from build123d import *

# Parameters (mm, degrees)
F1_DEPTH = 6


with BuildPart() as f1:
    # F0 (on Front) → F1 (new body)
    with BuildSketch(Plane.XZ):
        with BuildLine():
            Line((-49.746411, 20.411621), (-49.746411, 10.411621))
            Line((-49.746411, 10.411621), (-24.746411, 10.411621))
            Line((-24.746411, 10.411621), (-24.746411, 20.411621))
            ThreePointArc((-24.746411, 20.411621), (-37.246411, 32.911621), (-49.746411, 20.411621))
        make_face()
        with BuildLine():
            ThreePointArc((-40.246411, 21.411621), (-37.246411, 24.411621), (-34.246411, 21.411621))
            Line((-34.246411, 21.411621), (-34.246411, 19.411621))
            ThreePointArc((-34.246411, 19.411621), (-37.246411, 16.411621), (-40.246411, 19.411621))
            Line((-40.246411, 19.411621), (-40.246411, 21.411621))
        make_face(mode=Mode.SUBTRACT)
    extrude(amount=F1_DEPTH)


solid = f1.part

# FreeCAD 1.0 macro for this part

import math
import FreeCAD as App
import Part
import Sketcher
from FreeCAD import Vector
Q = App.Units.Quantity

doc = App.newDocument("Part")
body = doc.addObject("PartDesign::Body", "Body")

# Sketch on XZ plane
sketch1 = body.newObject("Sketcher::SketchObject", "Sketch")
sketch1.AttachmentSupport = (doc.getObject("XZ_Plane"), [""])
sketch1.MapMode = "FlatFace"
sketch1.addGeometry(Part.LineSegment(Vector(-49.7, 20.4, 0), Vector(-49.7, 10.4, 0)), False)
sketch1.addGeometry(Part.LineSegment(Vector(-49.7, 10.4, 0), Vector(-24.7, 10.4, 0)), False)
sketch1.addGeometry(Part.LineSegment(Vector(-24.7, 10.4, 0), Vector(-24.7, 20.4, 0)), False)
sketch1.addGeometry(Part.ArcOfCircle(Part.Circle(Vector(-37.2, 20.4, 0), Vector(0, 0, 1), 12.5), math.radians(0), math.radians(180)), False)
sketch1.addGeometry(Part.LineSegment(Vector(-40.2, 19.4, 0), Vector(-40.2, 21.4, 0)), False)
sketch1.addGeometry(Part.ArcOfCircle(Part.Circle(Vector(-37.2, 21.4, 0), Vector(0, 0, 1), 3), math.radians(0), math.radians(180)), False)
sketch1.addGeometry(Part.LineSegment(Vector(-34.2, 21.4, 0), Vector(-34.2, 19.4, 0)), False)
sketch1.addGeometry(Part.ArcOfCircle(Part.Circle(Vector(-37.2, 19.4, 0), Vector(0, 0, 1), 3), math.radians(180), math.radians(360)), False)
sketch1.addConstraint(Sketcher.Constraint("Coincident", 0, 2, 1, 1))
sketch1.addConstraint(Sketcher.Constraint("Coincident", 1, 2, 2, 1))
sketch1.addConstraint(Sketcher.Constraint("Tangent", 2, 2, 3, 1))
sketch1.addConstraint(Sketcher.Constraint("Tangent", 3, 2, 0, 1))
sketch1.addConstraint(Sketcher.Constraint("Tangent", 4, 2, 5, 2))
sketch1.addConstraint(Sketcher.Constraint("Tangent", 5, 1, 6, 1))
sketch1.addConstraint(Sketcher.Constraint("Tangent", 6, 2, 7, 2))
sketch1.addConstraint(Sketcher.Constraint("Tangent", 7, 1, 4, 1))
sketch1.addConstraint(Sketcher.Constraint("Vertical", 0))
sketch1.addConstraint(Sketcher.Constraint("Horizontal", 1))
sketch1.addConstraint(Sketcher.Constraint("Vertical", 2))
sketch1.addConstraint(Sketcher.Constraint("Vertical", 4))
sketch1.addConstraint(Sketcher.Constraint("Vertical", 6))
sketch1.addConstraint(Sketcher.Constraint("Vertical", 3, 3, 5, 3))
sketch1.addConstraint(Sketcher.Constraint("Radius", 5, Q("3 mm")))
sketch1.addConstraint(Sketcher.Constraint("Radius", 3, Q("12.5 mm")))
sketch1.addConstraint(Sketcher.Constraint("DistanceY", 0, 2, 0, 1, Q("10 mm")))
sketch1.addConstraint(Sketcher.Constraint("DistanceY", 4, 1, 4, 2, Q("2 mm")))
sketch1.addConstraint(Sketcher.Constraint("DistanceY", 3, 3, 5, 3, Q("1 mm")))
sketch1.addConstraint(Sketcher.Constraint("DistanceX", 3, 3, -1, 1, Q("37.246411 mm")))
sketch1.addConstraint(Sketcher.Constraint("DistanceY", -1, 1, 3, 3, Q("20.411621 mm")))
pad1 = body.newObject("PartDesign::Pad", "Pad")
pad1.Profile = sketch1
pad1.Length = 6

doc.recompute()
